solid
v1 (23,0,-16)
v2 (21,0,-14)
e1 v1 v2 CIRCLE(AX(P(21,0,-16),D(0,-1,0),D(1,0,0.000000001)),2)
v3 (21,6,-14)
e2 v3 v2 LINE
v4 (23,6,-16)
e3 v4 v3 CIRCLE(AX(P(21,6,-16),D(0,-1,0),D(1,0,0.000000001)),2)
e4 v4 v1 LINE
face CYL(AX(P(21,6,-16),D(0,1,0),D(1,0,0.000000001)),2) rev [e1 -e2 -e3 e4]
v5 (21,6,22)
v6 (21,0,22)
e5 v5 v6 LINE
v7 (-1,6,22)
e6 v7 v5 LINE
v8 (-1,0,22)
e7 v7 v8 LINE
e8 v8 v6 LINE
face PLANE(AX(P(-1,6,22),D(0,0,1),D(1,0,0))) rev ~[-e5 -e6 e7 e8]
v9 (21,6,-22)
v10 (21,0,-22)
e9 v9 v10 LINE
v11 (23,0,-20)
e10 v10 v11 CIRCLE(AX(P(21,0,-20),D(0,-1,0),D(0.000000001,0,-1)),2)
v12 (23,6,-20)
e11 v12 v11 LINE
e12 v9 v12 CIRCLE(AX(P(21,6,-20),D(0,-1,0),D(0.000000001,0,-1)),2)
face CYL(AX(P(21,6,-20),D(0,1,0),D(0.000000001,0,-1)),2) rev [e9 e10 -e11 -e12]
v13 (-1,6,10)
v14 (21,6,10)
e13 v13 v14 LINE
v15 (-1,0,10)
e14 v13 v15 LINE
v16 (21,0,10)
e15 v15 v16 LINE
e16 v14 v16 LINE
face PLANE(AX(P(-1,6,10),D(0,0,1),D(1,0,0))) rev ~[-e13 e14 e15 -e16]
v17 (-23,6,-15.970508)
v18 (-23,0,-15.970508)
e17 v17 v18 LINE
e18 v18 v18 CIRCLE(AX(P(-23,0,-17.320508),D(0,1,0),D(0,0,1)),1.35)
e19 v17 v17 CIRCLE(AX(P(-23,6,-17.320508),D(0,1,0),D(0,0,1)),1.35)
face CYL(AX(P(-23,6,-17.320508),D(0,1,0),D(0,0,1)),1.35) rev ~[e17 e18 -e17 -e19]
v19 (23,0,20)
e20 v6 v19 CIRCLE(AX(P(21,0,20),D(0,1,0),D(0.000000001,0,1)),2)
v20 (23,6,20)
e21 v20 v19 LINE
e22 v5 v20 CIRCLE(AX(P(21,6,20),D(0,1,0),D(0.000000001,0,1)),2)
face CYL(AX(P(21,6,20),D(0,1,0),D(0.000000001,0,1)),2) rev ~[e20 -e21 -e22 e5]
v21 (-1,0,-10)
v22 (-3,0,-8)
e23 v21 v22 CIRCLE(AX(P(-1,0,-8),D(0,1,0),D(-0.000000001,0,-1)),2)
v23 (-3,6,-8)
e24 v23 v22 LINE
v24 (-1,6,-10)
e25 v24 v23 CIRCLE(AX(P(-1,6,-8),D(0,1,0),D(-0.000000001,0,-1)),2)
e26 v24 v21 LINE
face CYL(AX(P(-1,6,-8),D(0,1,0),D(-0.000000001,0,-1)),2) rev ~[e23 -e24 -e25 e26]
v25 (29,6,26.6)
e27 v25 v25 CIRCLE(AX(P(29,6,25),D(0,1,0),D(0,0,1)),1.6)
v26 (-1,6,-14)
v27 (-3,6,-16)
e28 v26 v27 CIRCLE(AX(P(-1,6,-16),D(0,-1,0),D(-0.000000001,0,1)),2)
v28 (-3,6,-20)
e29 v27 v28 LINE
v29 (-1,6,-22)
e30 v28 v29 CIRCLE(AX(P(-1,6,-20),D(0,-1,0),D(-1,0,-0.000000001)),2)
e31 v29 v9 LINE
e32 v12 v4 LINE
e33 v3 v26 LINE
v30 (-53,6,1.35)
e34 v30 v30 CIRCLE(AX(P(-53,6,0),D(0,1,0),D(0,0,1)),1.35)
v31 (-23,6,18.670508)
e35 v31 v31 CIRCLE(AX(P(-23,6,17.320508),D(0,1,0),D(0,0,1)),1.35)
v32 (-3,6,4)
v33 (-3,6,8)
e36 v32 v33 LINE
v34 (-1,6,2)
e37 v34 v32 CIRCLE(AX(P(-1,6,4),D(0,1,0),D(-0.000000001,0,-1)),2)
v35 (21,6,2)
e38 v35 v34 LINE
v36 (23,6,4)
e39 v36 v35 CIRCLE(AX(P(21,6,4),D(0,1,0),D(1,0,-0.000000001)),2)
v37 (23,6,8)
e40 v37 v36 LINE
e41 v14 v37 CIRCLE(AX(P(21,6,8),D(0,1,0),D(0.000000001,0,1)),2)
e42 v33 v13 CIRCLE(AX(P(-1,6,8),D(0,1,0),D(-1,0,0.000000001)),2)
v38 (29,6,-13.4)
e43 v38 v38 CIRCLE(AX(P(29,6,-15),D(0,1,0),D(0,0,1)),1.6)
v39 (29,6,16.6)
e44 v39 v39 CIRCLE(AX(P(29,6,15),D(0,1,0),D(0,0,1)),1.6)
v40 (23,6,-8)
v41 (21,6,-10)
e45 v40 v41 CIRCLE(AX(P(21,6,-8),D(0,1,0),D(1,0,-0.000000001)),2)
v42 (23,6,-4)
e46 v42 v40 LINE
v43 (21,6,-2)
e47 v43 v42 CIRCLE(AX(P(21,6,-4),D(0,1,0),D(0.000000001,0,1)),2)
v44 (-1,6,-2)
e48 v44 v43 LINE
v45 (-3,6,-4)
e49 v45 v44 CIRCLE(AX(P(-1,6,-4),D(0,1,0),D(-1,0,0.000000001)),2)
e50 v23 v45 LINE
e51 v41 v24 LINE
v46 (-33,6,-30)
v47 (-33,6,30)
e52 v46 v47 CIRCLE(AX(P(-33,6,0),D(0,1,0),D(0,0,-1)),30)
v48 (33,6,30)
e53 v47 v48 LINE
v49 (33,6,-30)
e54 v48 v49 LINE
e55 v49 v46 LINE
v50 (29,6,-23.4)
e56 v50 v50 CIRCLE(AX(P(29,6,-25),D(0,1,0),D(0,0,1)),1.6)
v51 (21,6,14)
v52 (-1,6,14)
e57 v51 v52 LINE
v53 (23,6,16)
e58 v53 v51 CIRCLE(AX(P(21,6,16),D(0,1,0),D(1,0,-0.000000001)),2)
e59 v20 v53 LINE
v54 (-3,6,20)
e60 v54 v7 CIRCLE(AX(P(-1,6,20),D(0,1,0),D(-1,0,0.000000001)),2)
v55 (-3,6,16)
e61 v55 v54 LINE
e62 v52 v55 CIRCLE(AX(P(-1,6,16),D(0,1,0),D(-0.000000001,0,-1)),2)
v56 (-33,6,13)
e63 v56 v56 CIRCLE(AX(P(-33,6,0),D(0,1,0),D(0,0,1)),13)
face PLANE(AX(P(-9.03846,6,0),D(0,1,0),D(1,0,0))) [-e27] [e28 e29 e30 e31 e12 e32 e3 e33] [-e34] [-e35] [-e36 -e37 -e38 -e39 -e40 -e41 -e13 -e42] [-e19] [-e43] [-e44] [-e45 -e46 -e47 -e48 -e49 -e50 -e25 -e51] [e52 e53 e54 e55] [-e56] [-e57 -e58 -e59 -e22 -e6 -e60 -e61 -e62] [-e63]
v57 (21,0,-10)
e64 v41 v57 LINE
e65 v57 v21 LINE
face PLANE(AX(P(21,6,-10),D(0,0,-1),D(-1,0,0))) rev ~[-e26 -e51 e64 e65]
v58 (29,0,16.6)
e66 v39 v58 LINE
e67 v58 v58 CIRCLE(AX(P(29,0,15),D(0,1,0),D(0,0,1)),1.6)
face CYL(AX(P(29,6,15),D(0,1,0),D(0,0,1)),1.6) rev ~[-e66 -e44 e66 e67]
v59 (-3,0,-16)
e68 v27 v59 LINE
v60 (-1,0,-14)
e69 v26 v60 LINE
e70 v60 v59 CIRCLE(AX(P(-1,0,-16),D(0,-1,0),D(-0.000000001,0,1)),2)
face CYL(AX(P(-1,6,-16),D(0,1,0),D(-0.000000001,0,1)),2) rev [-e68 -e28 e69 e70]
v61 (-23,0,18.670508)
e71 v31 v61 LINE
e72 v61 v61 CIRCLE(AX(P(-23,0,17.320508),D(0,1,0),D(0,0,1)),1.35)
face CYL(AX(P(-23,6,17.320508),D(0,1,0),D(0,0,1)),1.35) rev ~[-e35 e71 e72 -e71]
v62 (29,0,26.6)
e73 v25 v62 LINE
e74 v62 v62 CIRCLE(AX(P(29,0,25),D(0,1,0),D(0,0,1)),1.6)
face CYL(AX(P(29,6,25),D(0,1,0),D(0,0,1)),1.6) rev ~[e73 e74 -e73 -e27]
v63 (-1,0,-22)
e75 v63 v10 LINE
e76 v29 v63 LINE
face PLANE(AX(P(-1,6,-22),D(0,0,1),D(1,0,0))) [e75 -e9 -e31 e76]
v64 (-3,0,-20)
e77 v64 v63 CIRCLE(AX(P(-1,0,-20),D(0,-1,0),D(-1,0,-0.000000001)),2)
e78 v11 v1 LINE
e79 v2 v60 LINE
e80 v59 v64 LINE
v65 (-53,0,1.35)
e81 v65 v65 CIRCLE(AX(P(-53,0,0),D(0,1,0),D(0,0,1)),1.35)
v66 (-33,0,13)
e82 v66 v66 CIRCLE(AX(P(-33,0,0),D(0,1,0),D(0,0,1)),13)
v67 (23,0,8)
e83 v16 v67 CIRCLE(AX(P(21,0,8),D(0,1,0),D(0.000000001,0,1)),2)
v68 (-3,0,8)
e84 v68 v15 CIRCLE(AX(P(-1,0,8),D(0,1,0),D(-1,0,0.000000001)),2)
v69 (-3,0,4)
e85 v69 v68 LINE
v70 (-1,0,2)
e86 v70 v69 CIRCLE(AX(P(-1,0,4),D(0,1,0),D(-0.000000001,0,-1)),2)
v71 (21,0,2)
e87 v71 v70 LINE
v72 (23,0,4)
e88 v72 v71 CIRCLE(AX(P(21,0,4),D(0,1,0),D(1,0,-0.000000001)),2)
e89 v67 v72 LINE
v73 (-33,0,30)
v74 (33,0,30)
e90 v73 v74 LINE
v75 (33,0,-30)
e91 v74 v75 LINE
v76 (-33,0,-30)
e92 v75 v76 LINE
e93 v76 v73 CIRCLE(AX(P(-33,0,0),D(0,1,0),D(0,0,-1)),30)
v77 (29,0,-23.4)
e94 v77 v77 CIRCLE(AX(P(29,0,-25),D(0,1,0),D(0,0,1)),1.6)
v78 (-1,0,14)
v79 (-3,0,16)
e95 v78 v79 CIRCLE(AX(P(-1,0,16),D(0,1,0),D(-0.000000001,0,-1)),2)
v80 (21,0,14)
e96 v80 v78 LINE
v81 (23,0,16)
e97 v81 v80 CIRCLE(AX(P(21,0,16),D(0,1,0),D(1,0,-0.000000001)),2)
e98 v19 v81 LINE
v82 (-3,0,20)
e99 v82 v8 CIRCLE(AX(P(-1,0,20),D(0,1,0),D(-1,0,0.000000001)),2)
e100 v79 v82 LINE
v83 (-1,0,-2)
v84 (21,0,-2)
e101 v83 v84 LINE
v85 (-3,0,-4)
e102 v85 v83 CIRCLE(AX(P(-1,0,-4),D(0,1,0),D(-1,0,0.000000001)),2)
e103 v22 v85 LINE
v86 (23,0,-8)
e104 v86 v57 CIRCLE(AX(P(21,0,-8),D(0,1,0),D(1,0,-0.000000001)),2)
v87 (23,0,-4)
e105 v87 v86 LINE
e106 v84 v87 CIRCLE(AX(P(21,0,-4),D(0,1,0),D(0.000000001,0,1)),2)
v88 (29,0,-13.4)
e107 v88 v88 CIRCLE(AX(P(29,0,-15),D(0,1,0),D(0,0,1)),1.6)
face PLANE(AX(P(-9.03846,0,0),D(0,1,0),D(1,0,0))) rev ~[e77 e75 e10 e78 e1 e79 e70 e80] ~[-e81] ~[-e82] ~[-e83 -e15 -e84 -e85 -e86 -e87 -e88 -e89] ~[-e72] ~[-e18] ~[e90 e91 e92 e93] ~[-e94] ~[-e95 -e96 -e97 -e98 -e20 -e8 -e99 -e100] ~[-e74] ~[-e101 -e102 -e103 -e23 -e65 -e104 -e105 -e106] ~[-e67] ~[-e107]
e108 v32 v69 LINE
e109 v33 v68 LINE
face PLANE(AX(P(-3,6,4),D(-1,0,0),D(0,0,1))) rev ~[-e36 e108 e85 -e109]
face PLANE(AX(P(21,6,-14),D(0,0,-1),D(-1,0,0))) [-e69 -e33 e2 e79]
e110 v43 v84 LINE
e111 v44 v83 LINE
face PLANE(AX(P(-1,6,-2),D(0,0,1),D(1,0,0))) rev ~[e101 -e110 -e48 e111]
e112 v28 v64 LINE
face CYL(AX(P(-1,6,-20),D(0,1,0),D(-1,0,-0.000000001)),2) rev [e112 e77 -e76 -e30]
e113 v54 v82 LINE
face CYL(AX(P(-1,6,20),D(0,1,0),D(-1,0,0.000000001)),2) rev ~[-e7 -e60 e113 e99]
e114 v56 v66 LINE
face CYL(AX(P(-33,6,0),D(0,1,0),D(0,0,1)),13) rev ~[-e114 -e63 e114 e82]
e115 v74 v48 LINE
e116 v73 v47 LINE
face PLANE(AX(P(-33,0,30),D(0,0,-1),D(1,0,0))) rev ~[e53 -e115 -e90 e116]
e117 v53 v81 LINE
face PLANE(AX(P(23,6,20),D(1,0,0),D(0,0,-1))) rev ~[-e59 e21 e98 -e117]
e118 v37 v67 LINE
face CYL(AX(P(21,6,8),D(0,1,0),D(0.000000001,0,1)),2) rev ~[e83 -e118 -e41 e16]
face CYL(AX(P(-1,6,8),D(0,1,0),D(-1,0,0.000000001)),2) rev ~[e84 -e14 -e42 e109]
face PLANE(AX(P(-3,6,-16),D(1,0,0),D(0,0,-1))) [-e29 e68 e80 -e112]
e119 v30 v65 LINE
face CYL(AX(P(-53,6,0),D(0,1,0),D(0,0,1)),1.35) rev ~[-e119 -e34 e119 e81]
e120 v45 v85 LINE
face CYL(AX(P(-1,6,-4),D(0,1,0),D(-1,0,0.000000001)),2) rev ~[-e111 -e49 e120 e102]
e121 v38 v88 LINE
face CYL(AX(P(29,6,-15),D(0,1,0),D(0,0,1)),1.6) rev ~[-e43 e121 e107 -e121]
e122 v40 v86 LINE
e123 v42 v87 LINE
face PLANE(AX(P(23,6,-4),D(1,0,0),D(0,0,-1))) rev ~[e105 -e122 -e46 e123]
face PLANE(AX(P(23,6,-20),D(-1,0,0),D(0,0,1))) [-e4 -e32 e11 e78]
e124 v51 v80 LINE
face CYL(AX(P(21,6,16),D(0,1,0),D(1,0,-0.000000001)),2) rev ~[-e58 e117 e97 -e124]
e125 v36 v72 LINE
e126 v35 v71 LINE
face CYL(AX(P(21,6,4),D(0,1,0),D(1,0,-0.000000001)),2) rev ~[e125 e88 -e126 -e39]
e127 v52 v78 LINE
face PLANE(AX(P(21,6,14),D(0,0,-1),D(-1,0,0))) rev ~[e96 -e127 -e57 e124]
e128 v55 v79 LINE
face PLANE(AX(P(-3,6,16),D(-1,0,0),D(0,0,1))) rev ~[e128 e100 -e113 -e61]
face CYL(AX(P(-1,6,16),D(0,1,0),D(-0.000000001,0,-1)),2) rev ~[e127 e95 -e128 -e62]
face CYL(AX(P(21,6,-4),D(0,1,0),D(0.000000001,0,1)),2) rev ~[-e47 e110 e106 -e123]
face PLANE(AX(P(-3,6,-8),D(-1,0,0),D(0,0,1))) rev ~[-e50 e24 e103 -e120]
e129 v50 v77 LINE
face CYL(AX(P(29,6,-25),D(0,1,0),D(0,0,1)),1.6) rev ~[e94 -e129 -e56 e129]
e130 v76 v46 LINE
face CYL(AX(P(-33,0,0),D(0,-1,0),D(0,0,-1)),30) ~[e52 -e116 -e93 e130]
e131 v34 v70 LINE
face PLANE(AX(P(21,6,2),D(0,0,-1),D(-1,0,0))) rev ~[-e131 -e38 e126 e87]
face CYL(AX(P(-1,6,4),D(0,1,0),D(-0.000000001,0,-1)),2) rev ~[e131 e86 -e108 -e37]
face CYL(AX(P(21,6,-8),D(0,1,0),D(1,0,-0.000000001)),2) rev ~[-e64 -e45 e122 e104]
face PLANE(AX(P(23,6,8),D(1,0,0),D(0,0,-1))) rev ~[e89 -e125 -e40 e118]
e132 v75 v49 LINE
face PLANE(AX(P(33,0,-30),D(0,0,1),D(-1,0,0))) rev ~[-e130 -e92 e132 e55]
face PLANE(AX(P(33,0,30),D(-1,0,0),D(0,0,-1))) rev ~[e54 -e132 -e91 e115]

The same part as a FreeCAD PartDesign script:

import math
import FreeCAD as App
import Part
import Sketcher
Q = App.Units.Quantity

doc = App.newDocument("Part")
body = doc.addObject("PartDesign::Body", "Body")

sketch1 = body.newObject("Sketcher::SketchObject", "Sketch")
sketch1.AttachmentSupport = (doc.getObject("XZ_Plane"), [""])
sketch1.MapMode = "FlatFace"
sketch1.addGeometry([
    Part.LineSegment(App.Vector(-33, 30, 0), App.Vector(33, 30, 0)),
    Part.LineSegment(App.Vector(33, 30, 0), App.Vector(33, -30, 0)),
    Part.LineSegment(App.Vector(33, -30, 0), App.Vector(-33, -30, 0)),
    Part.ArcOfCircle(Part.Circle(App.Vector(-33, 0, 0), App.Vector(0, 0, 1), 30), math.radians(90), math.radians(270)),
], False)
sketch1.addConstraint([
    Sketcher.Constraint("Coincident", 0, 2, 1, 1),
    Sketcher.Constraint("Coincident", 1, 2, 2, 1),
    Sketcher.Constraint("Tangent", 2, 2, 3, 2),
    Sketcher.Constraint("Tangent", 3, 1, 0, 1),
    Sketcher.Constraint("Horizontal", 0),
    Sketcher.Constraint("Vertical", 1),
    Sketcher.Constraint("Horizontal", 2),
    Sketcher.Constraint("Symmetric", 0, 2, 2, 2, -1, 1),
    Sketcher.Constraint("Radius", 3, Q("30 mm")),
    Sketcher.Constraint("DistanceX", 0, 1, 0, 2, Q("66 mm")),
])
pad1 = body.newObject("PartDesign::Pad", "Pad")
pad1.Profile = sketch1
pad1.Length = 6
pad1.Reversed = True

sketch2 = body.newObject("Sketcher::SketchObject", "Sketch001")
sketch2.AttachmentSupport = (doc.getObject("XZ_Plane"), [""])
sketch2.MapMode = "FlatFace"
sketch2.AttachmentOffset = App.Placement(App.Vector(0, 0, -6), App.Rotation())
sketch2.addGeometry([
    Part.Circle(App.Vector(-33, 0, 0), App.Vector(0, 0, 1), 13),
    Part.Circle(App.Vector(-53, 0, 0), App.Vector(0, 0, 1), 1.4),
    Part.Circle(App.Vector(-23, -17.3, 0), App.Vector(0, 0, 1), 1.4),
    Part.Circle(App.Vector(-23, 17.3, 0), App.Vector(0, 0, 1), 1.4),
], False)
sketch2.addConstraint([
    Sketcher.Constraint("Equal", 1, 2),
    Sketcher.Constraint("Equal", 2, 3),
    Sketcher.Constraint("Symmetric", 2, 3, 3, 3, -1),
    Sketcher.Constraint("PointOnObject", 0, 3, -1),
    Sketcher.Constraint("PointOnObject", 1, 3, -1),
    Sketcher.Constraint("Diameter", 0, Q("26 mm")),
    Sketcher.Constraint("Diameter", 1, Q("2.7 mm")),
    Sketcher.Constraint("DistanceX", 0, 3, -1, 1, Q("33 mm")),
    Sketcher.Constraint("DistanceX", 1, 3, -1, 1, Q("53 mm")),
    Sketcher.Constraint("DistanceX", 2, 3, -1, 1, Q("23 mm")),
    Sketcher.Constraint("DistanceY", 2, 3, -1, 1, Q("17.320508 mm")),
])
pocket1 = body.newObject("PartDesign::Pocket", "Pocket")
pocket1.Profile = sketch2
pocket1.Length = 6
pocket1.Reversed = True

sketch3 = body.newObject("Sketcher::SketchObject", "Sketch002")
sketch3.AttachmentSupport = (doc.getObject("XZ_Plane"), [""])
sketch3.MapMode = "FlatFace"
sketch3.AttachmentOffset = App.Placement(App.Vector(0, 0, -6), App.Rotation())
sketch3.addGeometry([
    Part.LineSegment(App.Vector(-1, -14, 0), App.Vector(21, -14, 0)),
    Part.ArcOfCircle(Part.Circle(App.Vector(21, -16, 0), App.Vector(0, 0, 1), 2), math.radians(0), math.radians(90)),
    Part.LineSegment(App.Vector(23, -16, 0), App.Vector(23, -20, 0)),
    Part.ArcOfCircle(Part.Circle(App.Vector(21, -20, 0), App.Vector(0, 0, 1), 2), math.radians(-90), math.radians(0)),
    Part.LineSegment(App.Vector(21, -22, 0), App.Vector(-1, -22, 0)),
    Part.ArcOfCircle(Part.Circle(App.Vector(-1, -20, 0), App.Vector(0, 0, 1), 2), math.radians(-180), math.radians(-90)),
    Part.LineSegment(App.Vector(-3, -20, 0), App.Vector(-3, -16, 0)),
    Part.ArcOfCircle(Part.Circle(App.Vector(-1, -16, 0), App.Vector(0, 0, 1), 2), math.radians(90), math.radians(180)),
    Part.LineSegment(App.Vector(23, -4, 0), App.Vector(23, -8, 0)),
    Part.ArcOfCircle(Part.Circle(App.Vector(21, -8, 0), App.Vector(0, 0, 1), 2), math.radians(-90), math.radians(0)),
    Part.LineSegment(App.Vector(21, -10, 0), App.Vector(-1, -10, 0)),
    Part.ArcOfCircle(Part.Circle(App.Vector(-1, -8, 0), App.Vector(0, 0, 1), 2), math.radians(-180), math.radians(-90)),
    Part.LineSegment(App.Vector(-3, -8, 0), App.Vector(-3, -4, 0)),
    Part.ArcOfCircle(Part.Circle(App.Vector(-1, -4, 0), App.Vector(0, 0, 1), 2), math.radians(90), math.radians(180)),
    Part.LineSegment(App.Vector(-1, -2, 0), App.Vector(21, -2, 0)),
    Part.ArcOfCircle(Part.Circle(App.Vector(21, -4, 0), App.Vector(0, 0, 1), 2), math.radians(0), math.radians(90)),
    Part.LineSegment(App.Vector(23, 8, 0), App.Vector(23, 4, 0)),
    Part.ArcOfCircle(Part.Circle(App.Vector(21, 4, 0), App.Vector(0, 0, 1), 2), math.radians(-90), math.radians(0)),
    Part.LineSegment(App.Vector(21, 2, 0), App.Vector(-1, 2, 0)),
    Part.ArcOfCircle(Part.Circle(App.Vector(-1, 4, 0), App.Vector(0, 0, 1), 2), math.radians(-180), math.radians(-90)),
    Part.LineSegment(App.Vector(-3, 4, 0), App.Vector(-3, 8, 0)),
    Part.ArcOfCircle(Part.Circle(App.Vector(-1, 8, 0), App.Vector(0, 0, 1), 2), math.radians(90), math.radians(180)),
    Part.LineSegment(App.Vector(-1, 10, 0), App.Vector(21, 10, 0)),
    Part.ArcOfCircle(Part.Circle(App.Vector(21, 8, 0), App.Vector(0, 0, 1), 2), math.radians(0), math.radians(90)),
    Part.LineSegment(App.Vector(23, 20, 0), App.Vector(23, 16, 0)),
    Part.ArcOfCircle(Part.Circle(App.Vector(21, 16, 0), App.Vector(0, 0, 1), 2), math.radians(-90), math.radians(0)),
    Part.LineSegment(App.Vector(21, 14, 0), App.Vector(-1, 14, 0)),
    Part.ArcOfCircle(Part.Circle(App.Vector(-1, 16, 0), App.Vector(0, 0, 1), 2), math.radians(-180), math.radians(-90)),
    Part.LineSegment(App.Vector(-3, 16, 0), App.Vector(-3, 20, 0)),
    Part.ArcOfCircle(Part.Circle(App.Vector(-1, 20, 0), App.Vector(0, 0, 1), 2), math.radians(90), math.radians(180)),
    Part.LineSegment(App.Vector(-1, 22, 0), App.Vector(21, 22, 0)),
    Part.ArcOfCircle(Part.Circle(App.Vector(21, 20, 0), App.Vector(0, 0, 1), 2), math.radians(0), math.radians(90)),
], False)
sketch3.addConstraint([
    Sketcher.Constraint("Tangent", 0, 2, 1, 2),
    Sketcher.Constraint("Tangent", 1, 1, 2, 1),
    Sketcher.Constraint("Tangent", 2, 2, 3, 2),
    Sketcher.Constraint("Tangent", 3, 1, 4, 1),
    Sketcher.Constraint("Tangent", 4, 2, 5, 2),
    Sketcher.Constraint("Tangent", 5, 1, 6, 1),
    Sketcher.Constraint("Tangent", 6, 2, 7, 2),
    Sketcher.Constraint("Tangent", 7, 1, 0, 1),
    Sketcher.Constraint("Tangent", 8, 2, 9, 2),
    Sketcher.Constraint("Tangent", 9, 1, 10, 1),
    Sketcher.Constraint("Tangent", 10, 2, 11, 2),
    Sketcher.Constraint("Tangent", 11, 1, 12, 1),
    Sketcher.Constraint("Tangent", 12, 2, 13, 2),
    Sketcher.Constraint("Tangent", 13, 1, 14, 1),
    Sketcher.Constraint("Tangent", 14, 2, 15, 2),
    Sketcher.Constraint("Tangent", 15, 1, 8, 1),
    Sketcher.Constraint("Tangent", 16, 2, 17, 2),
    Sketcher.Constraint("Tangent", 17, 1, 18, 1),
    Sketcher.Constraint("Tangent", 18, 2, 19, 2),
    Sketcher.Constraint("Tangent", 19, 1, 20, 1),
    Sketcher.Constraint("Tangent", 20, 2, 21, 2),
    Sketcher.Constraint("Tangent", 21, 1, 22, 1),
    Sketcher.Constraint("Tangent", 22, 2, 23, 2),
    Sketcher.Constraint("Tangent", 23, 1, 16, 1),
    Sketcher.Constraint("Tangent", 24, 2, 25, 2),
    Sketcher.Constraint("Tangent", 25, 1, 26, 1),
    Sketcher.Constraint("Tangent", 26, 2, 27, 2),
    Sketcher.Constraint("Tangent", 27, 1, 28, 1),
    Sketcher.Constraint("Tangent", 28, 2, 29, 2),
    Sketcher.Constraint("Tangent", 29, 1, 30, 1),
    Sketcher.Constraint("Tangent", 30, 2, 31, 2),
    Sketcher.Constraint("Tangent", 31, 1, 24, 1),
    Sketcher.Constraint("Horizontal", 0),
    Sketcher.Constraint("Vertical", 2),
    Sketcher.Constraint("Horizontal", 4),
    Sketcher.Constraint("Vertical", 6),
    Sketcher.Constraint("Vertical", 8),
    Sketcher.Constraint("Horizontal", 10),
    Sketcher.Constraint("Vertical", 12),
    Sketcher.Constraint("Horizontal", 14),
    Sketcher.Constraint("Vertical", 16),
    Sketcher.Constraint("Horizontal", 18),
    Sketcher.Constraint("Vertical", 20),
    Sketcher.Constraint("Horizontal", 22),
    Sketcher.Constraint("Vertical", 24),
    Sketcher.Constraint("Horizontal", 26),
    Sketcher.Constraint("Vertical", 28),
    Sketcher.Constraint("Horizontal", 30),
    Sketcher.Constraint("Equal", 1, 3),
    Sketcher.Constraint("Equal", 3, 5),
    Sketcher.Constraint("Equal", 5, 7),
    Sketcher.Constraint("Equal", 7, 9),
    Sketcher.Constraint("Equal", 9, 11),
    Sketcher.Constraint("Equal", 11, 13),
    Sketcher.Constraint("Equal", 13, 15),
    Sketcher.Constraint("Equal", 15, 17),
    Sketcher.Constraint("Equal", 17, 19),
    Sketcher.Constraint("Equal", 19, 21),
    Sketcher.Constraint("Equal", 21, 23),
    Sketcher.Constraint("Equal", 23, 25),
    Sketcher.Constraint("Equal", 25, 27),
    Sketcher.Constraint("Equal", 27, 29),
    Sketcher.Constraint("Equal", 29, 31),
    Sketcher.Constraint("Symmetric", 15, 3, 17, 3, -1),
    Sketcher.Constraint("Symmetric", 11, 3, 21, 3, -1),
    Sketcher.Constraint("Symmetric", 1, 3, 25, 3, -1),
    Sketcher.Constraint("Symmetric", 5, 3, 29, 3, -1),
    Sketcher.Constraint("Vertical", 3, 3, 9, 3),
    Sketcher.Constraint("Vertical", 7, 3, 11, 3),
    Sketcher.Constraint("Equal", 6, 8),
    Sketcher.Constraint("Radius", 1, Q("2 mm")),
    Sketcher.Constraint("DistanceX", 0, 1, 0, 2, Q("22 mm")),
    Sketcher.Constraint("DistanceY", 2, 2, 2, 1, Q("4 mm")),
    Sketcher.Constraint("DistanceX", -1, 1, 1, 3, Q("21 mm")),
    Sketcher.Constraint("DistanceY", 1, 3, -1, 1, Q("16 mm")),
    Sketcher.Constraint("DistanceY", 9, 3, -1, 1, Q("8 mm")),
])
pocket2 = body.newObject("PartDesign::Pocket", "Pocket001")
pocket2.Profile = sketch3
pocket2.Length = 6
pocket2.Reversed = True

sketch4 = body.newObject("Sketcher::SketchObject", "Sketch003")
sketch4.AttachmentSupport = (doc.getObject("XZ_Plane"), [""])
sketch4.MapMode = "FlatFace"
sketch4.AttachmentOffset = App.Placement(App.Vector(0, 0, -6), App.Rotation())
sketch4.addGeometry([
    Part.Circle(App.Vector(29, -25, 0), App.Vector(0, 0, 1), 1.6),
    Part.Circle(App.Vector(29, -15, 0), App.Vector(0, 0, 1), 1.6),
    Part.Circle(App.Vector(29, 25, 0), App.Vector(0, 0, 1), 1.6),
    Part.Circle(App.Vector(29, 15, 0), App.Vector(0, 0, 1), 1.6),
], False)
sketch4.addConstraint([
    Sketcher.Constraint("Equal", 0, 1),
    Sketcher.Constraint("Equal", 1, 2),
    Sketcher.Constraint("Equal", 2, 3),
    Sketcher.Constraint("Symmetric", 0, 3, 2, 3, -1),
    Sketcher.Constraint("Symmetric", 1, 3, 3, 3, -1),
    Sketcher.Constraint("Vertical", 0, 3, 1, 3),
    Sketcher.Constraint("Diameter", 0, Q("3.2 mm")),
    Sketcher.Constraint("DistanceX", -1, 1, 0, 3, Q("29 mm")),
    Sketcher.Constraint("DistanceY", 0, 3, -1, 1, Q("25 mm")),
    Sketcher.Constraint("DistanceY", 1, 3, -1, 1, Q("15 mm")),
])
pocket3 = body.newObject("PartDesign::Pocket", "Pocket002")
pocket3.Profile = sketch4
pocket3.Length = 6
pocket3.Reversed = True

doc.recompute()
